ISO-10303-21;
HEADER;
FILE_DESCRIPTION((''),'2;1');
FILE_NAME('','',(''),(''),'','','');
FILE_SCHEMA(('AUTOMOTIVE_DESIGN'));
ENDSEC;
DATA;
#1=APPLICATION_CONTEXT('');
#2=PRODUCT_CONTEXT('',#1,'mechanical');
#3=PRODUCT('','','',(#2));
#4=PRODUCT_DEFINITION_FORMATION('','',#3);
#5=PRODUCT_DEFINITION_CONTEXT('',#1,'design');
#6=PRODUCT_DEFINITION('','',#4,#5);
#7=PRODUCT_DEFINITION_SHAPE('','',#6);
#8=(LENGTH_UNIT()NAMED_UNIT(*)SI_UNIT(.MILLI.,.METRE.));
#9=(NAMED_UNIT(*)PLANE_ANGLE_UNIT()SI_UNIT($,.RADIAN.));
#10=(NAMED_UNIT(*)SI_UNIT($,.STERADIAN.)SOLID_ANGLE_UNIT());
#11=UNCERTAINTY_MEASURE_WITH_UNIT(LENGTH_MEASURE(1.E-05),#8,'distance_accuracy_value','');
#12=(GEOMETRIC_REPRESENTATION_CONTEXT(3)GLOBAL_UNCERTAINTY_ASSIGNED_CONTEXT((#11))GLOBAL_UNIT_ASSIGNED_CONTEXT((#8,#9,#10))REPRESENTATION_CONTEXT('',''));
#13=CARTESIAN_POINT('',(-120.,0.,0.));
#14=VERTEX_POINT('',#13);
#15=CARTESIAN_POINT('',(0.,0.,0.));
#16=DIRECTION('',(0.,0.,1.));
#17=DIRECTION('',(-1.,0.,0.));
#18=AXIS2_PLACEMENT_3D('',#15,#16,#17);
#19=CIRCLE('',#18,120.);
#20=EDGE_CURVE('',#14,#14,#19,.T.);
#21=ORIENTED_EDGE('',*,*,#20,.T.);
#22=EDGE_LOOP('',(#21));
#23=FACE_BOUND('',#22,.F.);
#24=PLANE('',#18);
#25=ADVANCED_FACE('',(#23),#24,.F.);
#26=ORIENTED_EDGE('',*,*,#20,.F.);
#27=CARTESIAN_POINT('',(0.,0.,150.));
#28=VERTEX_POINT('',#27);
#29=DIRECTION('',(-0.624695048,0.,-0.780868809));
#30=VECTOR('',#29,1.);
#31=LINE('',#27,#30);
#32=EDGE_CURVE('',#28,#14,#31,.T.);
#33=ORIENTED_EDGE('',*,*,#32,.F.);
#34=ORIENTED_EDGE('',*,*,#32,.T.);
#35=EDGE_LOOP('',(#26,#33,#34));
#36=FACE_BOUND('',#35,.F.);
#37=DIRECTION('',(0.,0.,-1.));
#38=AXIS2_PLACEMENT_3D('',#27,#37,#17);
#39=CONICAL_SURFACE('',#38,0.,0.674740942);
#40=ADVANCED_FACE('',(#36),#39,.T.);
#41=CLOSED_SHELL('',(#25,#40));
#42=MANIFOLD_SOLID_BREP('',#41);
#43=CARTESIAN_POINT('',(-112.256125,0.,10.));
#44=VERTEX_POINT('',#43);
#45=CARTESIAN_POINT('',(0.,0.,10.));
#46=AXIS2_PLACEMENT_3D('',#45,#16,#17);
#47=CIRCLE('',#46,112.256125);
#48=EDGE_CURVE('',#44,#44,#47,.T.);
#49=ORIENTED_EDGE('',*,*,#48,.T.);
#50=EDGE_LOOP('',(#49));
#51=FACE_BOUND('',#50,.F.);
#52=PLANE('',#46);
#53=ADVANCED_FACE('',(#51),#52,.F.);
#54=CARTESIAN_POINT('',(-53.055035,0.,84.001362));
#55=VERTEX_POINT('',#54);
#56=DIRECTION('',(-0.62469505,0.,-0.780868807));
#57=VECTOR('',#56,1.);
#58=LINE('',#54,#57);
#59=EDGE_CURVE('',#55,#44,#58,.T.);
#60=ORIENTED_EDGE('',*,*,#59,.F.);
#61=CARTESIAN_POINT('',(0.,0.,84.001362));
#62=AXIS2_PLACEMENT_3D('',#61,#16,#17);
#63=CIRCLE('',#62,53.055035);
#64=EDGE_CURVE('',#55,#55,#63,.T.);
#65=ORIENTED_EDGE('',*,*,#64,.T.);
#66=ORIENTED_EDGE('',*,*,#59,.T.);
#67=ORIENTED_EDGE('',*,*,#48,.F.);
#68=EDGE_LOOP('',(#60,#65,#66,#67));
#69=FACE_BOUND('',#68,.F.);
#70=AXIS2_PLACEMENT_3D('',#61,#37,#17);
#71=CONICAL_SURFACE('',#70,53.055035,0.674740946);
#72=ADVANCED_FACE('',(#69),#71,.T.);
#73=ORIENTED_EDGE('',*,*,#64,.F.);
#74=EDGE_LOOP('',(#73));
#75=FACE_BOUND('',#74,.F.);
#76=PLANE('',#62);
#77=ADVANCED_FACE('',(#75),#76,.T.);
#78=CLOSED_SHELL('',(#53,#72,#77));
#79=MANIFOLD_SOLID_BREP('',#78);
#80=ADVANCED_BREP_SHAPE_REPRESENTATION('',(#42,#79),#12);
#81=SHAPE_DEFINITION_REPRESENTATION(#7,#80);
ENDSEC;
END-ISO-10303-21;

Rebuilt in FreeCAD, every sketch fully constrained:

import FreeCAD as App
import Part
import Sketcher
Q = App.Units.Quantity

doc = App.newDocument("Part")
body = doc.addObject("PartDesign::Body", "Body")

# Sketch on XZ plane
sketch1 = body.newObject("Sketcher::SketchObject", "Sketch")
sketch1.AttachmentSupport = (doc.getObject("XZ_Plane"), [""])
sketch1.MapMode = "FlatFace"
sketch1.addGeometry([
    Part.LineSegment(App.Vector(-120, 0, 0), App.Vector(0, 0, 0)),
    Part.LineSegment(App.Vector(0, 0, 0), App.Vector(0, 150, 0)),
    Part.LineSegment(App.Vector(0, 150, 0), App.Vector(-120, 0, 0)),
], False)
sketch1.addConstraint([
    Sketcher.Constraint("Coincident", 0, 2, 1, 1),
    Sketcher.Constraint("Coincident", 1, 2, 2, 1),
    Sketcher.Constraint("Coincident", 2, 2, 0, 1),
    Sketcher.Constraint("Horizontal", 0),
    Sketcher.Constraint("Vertical", 1),
    Sketcher.Constraint("Coincident", 0, 2, -1, 1),
    Sketcher.Constraint("DistanceX", 0, 1, 0, 2, Q("120 mm")),
    Sketcher.Constraint("DistanceY", 1, 1, 1, 2, Q("150 mm")),
])
revolution = body.newObject("PartDesign::Revolution", "Revolution")
revolution.Profile = sketch1
revolution.ReferenceAxis = (sketch1, ["V_Axis"])
revolution.Angle = 360
body2 = doc.addObject("PartDesign::Body", "Body001")

# Sketch on XZ plane
sketch2 = body2.newObject("Sketcher::SketchObject", "Sketch001")
sketch2.AttachmentSupport = (doc.getObject("XZ_Plane001"), [""])
sketch2.MapMode = "FlatFace"
sketch2.addGeometry([
    Part.LineSegment(App.Vector(0, 10, 0), App.Vector(0, 84, 0)),
    Part.LineSegment(App.Vector(0, 84, 0), App.Vector(-53, 84, 0)),
    Part.LineSegment(App.Vector(-53, 84, 0), App.Vector(-112, 10, 0)),
    Part.LineSegment(App.Vector(-112, 10, 0), App.Vector(0, 10, 0)),
], False)
sketch2.addConstraint([
    Sketcher.Constraint("Coincident", 0, 2, 1, 1),
    Sketcher.Constraint("Coincident", 1, 2, 2, 1),
    Sketcher.Constraint("Coincident", 2, 2, 3, 1),
    Sketcher.Constraint("Coincident", 3, 2, 0, 1),
    Sketcher.Constraint("Vertical", 0),
    Sketcher.Constraint("Horizontal", 1),
    Sketcher.Constraint("Horizontal", 3),
    Sketcher.Constraint("PointOnObject", 0, 2, -2),
    Sketcher.Constraint("DistanceY", -1, 1, 2, 2, Q("10 mm")),
    Sketcher.Constraint("DistanceY", 0, 1, 0, 2, Q("74.001362 mm")),
    Sketcher.Constraint("DistanceX", 1, 2, 1, 1, Q("53.055035 mm")),
    Sketcher.Constraint("DistanceX", 3, 1, 3, 2, Q("112.256125 mm")),
])
revolution2 = body2.newObject("PartDesign::Revolution", "Revolution001")
revolution2.Profile = sketch2
revolution2.ReferenceAxis = (sketch2, ["V_Axis"])
revolution2.Angle = 360

doc.recompute()
